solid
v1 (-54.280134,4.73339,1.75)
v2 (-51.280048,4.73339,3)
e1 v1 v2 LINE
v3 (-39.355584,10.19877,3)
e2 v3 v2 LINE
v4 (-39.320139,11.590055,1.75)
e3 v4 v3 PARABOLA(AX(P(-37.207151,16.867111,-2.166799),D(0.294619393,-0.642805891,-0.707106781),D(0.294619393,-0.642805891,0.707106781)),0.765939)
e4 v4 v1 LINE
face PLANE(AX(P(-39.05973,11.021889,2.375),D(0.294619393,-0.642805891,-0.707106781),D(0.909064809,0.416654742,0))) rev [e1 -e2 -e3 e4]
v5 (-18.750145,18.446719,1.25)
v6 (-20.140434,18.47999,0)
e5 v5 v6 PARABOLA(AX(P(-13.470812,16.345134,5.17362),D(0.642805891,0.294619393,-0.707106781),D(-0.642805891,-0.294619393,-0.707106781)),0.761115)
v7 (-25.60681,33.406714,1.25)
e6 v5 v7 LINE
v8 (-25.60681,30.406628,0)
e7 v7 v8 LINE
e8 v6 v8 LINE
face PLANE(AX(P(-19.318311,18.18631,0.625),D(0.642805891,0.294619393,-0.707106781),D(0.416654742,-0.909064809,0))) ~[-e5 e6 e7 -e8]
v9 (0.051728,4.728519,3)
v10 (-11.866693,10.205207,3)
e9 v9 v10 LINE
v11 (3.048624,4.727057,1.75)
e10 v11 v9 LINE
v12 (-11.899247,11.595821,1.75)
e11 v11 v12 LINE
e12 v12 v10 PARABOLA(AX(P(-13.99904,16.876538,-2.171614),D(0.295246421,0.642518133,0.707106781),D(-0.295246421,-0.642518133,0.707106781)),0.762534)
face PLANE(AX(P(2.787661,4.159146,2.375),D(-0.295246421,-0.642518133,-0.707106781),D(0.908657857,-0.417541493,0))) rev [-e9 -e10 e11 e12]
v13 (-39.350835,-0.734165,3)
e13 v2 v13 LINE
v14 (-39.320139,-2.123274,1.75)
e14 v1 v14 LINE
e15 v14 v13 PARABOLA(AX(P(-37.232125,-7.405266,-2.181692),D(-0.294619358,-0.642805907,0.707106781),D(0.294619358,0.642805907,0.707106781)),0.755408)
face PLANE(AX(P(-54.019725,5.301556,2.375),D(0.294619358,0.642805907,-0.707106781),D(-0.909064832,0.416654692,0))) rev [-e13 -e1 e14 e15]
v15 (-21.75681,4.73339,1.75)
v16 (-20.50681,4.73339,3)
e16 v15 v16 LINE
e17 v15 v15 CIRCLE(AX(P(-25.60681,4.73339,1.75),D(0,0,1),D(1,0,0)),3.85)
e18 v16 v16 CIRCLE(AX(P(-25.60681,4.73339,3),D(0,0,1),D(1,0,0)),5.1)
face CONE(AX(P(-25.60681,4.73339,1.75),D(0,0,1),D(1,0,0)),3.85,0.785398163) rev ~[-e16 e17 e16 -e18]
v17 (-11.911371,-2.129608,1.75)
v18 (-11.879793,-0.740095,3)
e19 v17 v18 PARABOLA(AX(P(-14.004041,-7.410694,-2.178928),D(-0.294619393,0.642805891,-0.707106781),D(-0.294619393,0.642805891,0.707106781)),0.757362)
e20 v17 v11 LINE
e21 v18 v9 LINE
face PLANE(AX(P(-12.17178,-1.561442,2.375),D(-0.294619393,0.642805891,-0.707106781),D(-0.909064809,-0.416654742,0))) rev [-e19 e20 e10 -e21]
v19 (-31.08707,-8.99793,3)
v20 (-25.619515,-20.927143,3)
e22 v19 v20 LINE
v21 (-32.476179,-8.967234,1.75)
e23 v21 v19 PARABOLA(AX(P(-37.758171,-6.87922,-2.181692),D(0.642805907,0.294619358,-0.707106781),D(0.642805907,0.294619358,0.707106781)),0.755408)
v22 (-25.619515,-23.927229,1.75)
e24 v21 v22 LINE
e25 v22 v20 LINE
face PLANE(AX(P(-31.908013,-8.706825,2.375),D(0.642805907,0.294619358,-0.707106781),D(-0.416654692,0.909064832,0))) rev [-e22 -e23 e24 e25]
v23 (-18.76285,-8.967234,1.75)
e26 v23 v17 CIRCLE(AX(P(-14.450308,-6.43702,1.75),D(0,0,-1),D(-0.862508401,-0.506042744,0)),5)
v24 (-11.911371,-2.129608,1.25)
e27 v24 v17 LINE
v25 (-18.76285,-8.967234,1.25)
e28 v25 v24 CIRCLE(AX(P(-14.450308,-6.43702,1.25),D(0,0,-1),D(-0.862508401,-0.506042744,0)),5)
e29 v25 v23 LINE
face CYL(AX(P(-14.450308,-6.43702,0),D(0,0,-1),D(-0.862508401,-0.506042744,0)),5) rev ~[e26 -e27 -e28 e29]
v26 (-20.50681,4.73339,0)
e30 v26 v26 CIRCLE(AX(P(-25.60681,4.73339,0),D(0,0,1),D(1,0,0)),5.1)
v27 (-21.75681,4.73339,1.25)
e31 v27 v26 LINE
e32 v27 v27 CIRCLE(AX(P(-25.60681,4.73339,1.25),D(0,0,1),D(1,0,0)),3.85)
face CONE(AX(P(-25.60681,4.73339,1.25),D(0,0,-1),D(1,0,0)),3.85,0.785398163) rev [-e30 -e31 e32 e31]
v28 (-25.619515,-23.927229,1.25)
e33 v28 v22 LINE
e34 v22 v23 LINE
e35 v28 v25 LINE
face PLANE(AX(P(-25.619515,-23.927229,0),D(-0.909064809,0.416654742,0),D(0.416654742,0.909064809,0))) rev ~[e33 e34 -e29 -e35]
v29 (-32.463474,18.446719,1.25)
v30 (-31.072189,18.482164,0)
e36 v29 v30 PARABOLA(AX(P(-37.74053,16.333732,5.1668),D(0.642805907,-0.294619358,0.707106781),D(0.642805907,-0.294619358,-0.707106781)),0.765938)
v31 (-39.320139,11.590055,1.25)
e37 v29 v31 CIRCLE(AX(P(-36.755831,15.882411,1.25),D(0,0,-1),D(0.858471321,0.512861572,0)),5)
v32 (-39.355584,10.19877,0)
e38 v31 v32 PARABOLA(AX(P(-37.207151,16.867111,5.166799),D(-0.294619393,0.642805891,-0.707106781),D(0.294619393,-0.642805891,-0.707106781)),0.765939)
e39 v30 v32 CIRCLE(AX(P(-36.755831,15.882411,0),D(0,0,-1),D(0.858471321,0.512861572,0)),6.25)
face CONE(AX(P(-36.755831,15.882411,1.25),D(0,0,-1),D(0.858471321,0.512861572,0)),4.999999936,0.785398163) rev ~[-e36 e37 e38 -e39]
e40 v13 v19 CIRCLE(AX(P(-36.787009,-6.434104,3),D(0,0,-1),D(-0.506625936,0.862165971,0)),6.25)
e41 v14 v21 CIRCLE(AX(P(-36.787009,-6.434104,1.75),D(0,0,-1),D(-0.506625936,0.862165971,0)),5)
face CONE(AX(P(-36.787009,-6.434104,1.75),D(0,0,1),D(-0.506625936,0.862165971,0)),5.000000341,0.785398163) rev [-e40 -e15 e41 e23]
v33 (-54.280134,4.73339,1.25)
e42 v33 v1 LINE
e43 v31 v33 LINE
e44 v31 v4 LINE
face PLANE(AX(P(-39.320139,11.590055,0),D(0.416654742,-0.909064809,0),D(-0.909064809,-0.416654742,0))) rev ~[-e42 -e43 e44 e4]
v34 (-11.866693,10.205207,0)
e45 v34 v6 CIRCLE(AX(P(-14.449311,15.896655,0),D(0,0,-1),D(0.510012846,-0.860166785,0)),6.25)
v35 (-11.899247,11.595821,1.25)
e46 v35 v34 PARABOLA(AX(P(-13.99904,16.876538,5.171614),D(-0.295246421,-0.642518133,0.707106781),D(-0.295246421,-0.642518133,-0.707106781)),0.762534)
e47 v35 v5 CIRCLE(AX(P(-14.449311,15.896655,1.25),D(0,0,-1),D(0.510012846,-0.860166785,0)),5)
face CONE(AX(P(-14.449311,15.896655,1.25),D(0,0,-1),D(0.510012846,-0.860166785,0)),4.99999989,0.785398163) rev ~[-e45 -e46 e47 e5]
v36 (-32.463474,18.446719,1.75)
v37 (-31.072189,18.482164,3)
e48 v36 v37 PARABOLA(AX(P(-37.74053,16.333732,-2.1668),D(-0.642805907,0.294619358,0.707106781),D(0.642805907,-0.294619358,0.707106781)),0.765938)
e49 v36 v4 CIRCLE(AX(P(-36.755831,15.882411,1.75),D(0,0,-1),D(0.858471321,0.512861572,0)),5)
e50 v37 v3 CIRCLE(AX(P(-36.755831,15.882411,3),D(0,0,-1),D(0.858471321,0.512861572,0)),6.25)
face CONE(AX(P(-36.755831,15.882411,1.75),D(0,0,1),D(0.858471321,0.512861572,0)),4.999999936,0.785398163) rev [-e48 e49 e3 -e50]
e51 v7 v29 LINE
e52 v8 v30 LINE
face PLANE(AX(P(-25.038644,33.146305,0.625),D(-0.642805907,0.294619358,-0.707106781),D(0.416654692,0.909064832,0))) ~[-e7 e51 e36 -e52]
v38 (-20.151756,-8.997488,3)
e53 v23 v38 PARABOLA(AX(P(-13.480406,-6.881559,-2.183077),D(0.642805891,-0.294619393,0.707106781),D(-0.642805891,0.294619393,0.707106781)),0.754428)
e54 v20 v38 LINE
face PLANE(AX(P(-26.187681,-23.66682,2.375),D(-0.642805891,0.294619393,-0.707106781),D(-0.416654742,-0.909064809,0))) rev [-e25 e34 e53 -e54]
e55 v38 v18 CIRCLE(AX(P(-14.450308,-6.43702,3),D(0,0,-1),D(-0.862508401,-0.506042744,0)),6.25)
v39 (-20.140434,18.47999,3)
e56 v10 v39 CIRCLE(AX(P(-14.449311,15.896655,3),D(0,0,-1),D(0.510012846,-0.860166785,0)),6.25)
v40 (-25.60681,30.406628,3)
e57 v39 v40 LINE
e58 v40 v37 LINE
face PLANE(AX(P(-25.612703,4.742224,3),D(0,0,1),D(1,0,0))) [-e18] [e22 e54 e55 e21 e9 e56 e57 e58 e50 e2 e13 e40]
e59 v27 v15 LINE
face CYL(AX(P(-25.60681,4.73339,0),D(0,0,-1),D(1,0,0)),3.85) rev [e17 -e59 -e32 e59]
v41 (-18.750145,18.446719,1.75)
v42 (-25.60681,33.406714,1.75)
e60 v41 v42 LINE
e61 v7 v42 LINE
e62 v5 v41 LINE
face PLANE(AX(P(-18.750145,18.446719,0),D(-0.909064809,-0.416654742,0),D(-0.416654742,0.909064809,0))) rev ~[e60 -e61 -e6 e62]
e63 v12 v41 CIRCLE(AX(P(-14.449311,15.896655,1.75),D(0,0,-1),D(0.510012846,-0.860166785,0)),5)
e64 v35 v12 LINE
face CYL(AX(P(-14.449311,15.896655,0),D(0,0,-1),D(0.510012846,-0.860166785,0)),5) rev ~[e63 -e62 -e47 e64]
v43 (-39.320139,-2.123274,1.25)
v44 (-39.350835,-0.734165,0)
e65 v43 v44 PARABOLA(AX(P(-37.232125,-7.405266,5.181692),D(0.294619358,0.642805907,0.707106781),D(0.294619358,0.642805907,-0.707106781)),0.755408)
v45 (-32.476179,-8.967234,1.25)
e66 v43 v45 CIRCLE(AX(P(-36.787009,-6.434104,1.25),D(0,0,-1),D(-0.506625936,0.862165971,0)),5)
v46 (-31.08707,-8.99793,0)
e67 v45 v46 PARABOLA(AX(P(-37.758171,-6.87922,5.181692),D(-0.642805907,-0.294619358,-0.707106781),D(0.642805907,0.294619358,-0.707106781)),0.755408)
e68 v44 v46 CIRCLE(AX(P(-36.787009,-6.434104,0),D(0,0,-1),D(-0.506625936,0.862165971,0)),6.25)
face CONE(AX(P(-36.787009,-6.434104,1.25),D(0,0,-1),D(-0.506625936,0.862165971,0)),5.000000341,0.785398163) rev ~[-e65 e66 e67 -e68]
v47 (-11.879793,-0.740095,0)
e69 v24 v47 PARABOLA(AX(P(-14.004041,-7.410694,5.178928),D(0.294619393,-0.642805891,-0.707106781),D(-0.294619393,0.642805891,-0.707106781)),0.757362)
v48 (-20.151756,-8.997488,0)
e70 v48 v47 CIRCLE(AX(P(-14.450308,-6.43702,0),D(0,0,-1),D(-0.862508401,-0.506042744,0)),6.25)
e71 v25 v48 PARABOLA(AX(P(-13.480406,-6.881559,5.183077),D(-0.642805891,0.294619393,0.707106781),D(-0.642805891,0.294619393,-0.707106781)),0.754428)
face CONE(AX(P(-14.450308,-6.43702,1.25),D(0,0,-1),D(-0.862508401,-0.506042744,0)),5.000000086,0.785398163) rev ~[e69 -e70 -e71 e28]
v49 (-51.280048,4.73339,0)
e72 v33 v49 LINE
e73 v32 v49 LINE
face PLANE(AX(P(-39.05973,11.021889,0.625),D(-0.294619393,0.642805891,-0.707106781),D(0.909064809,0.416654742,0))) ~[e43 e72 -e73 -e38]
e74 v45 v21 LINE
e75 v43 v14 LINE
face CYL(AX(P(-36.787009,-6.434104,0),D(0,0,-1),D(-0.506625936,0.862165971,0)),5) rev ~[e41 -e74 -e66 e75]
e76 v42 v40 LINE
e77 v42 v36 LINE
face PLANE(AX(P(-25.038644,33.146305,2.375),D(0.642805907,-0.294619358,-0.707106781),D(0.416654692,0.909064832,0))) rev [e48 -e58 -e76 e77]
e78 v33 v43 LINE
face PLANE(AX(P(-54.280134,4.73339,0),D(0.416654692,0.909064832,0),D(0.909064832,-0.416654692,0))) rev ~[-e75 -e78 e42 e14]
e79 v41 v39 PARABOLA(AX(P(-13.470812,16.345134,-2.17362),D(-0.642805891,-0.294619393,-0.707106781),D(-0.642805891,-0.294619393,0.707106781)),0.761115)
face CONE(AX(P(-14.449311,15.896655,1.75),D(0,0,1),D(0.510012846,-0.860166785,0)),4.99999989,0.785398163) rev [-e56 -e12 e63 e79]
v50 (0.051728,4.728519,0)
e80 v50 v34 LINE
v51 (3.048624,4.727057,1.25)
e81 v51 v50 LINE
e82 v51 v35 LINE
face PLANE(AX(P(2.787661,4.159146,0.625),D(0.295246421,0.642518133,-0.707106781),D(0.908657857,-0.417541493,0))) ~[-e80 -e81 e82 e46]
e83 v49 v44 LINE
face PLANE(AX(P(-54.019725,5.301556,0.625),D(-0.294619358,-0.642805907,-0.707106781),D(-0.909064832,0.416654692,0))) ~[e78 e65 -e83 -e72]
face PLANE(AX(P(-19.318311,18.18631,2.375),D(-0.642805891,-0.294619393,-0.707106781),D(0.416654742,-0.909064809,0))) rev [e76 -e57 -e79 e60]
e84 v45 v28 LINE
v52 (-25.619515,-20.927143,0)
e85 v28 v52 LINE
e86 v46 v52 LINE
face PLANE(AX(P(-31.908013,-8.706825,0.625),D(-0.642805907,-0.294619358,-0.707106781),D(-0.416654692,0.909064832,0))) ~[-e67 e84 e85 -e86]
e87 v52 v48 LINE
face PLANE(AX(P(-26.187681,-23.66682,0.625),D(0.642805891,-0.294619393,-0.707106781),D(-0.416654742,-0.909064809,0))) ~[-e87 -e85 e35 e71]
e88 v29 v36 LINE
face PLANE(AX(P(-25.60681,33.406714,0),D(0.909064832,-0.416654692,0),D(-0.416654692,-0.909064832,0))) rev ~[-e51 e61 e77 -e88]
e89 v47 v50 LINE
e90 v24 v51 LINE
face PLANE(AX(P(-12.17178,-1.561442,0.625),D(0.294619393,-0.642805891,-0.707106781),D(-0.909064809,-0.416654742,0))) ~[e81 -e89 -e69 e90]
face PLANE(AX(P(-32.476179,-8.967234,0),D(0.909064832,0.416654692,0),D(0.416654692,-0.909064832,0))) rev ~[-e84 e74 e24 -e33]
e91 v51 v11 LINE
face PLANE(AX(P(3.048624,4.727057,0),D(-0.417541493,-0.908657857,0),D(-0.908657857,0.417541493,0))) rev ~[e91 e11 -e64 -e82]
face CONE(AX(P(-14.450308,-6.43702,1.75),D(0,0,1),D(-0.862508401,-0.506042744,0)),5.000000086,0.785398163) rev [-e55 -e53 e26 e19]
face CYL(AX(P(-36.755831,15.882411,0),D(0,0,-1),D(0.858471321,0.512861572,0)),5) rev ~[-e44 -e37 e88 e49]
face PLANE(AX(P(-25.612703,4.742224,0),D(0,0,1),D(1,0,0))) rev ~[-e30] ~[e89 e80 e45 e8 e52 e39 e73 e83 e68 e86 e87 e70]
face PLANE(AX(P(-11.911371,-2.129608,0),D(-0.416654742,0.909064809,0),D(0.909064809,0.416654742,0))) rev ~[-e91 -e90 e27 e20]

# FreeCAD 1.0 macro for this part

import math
import FreeCAD as App
import Part
import Sketcher


def edges_at(feature, points):
    """Names of the edges that pass closest to the given points."""
    edges = feature.Shape.Edges
    near = lambda p: min(range(len(edges)), key=lambda i: edges[i].distToShape(Part.Vertex(*p))[0])
    return sorted({f"Edge{near(p) + 1}" for p in points})

doc = App.newDocument("Part")
body = doc.addObject("PartDesign::Body", "Body")

sketch1 = body.newObject("Sketcher::SketchObject", "Sketch")
sketch1.AttachmentSupport = (doc.getObject("XY_Plane"), [""])
sketch1.MapMode = "FlatFace"
sketch1.addGeometry(Part.LineSegment(App.Vector(-25.6, 33.4, 0), App.Vector(-32.5, 18.4, 0)), False)
sketch1.addGeometry(Part.ArcOfCircle(Part.Circle(App.Vector(-36.8, 15.9, 0), App.Vector(0, 0, 1), 5), math.radians(-121), math.radians(31)), False)
sketch1.addGeometry(Part.LineSegment(App.Vector(-39.3, 11.6, 0), App.Vector(-54.3, 4.7, 0)), False)
sketch1.addGeometry(Part.LineSegment(App.Vector(-54.3, 4.7, 0), App.Vector(-39.3, -2.1, 0)), False)
sketch1.addGeometry(Part.ArcOfCircle(Part.Circle(App.Vector(-36.8, -6.4, 0), App.Vector(0, 0, 1), 5), math.radians(-30), math.radians(120)), False)
sketch1.addGeometry(Part.LineSegment(App.Vector(-32.5, -9, 0), App.Vector(-25.6, -23.9, 0)), False)
sketch1.addGeometry(Part.LineSegment(App.Vector(-25.6, -23.9, 0), App.Vector(-18.8, -9, 0)), False)
sketch1.addGeometry(Part.ArcOfCircle(Part.Circle(App.Vector(-14.5, -6.4, 0), App.Vector(0, 0, 1), 5), math.radians(59), math.radians(210)), False)
sketch1.addGeometry(Part.LineSegment(App.Vector(-11.9, -2.1, 0), App.Vector(3, 4.7, 0)), False)
sketch1.addGeometry(Part.LineSegment(App.Vector(3, 4.7, 0), App.Vector(-11.9, 11.6, 0)), False)
sketch1.addGeometry(Part.ArcOfCircle(Part.Circle(App.Vector(-14.4, 15.9, 0), App.Vector(0, 0, 1), 5), math.radians(149), math.radians(301)), False)
sketch1.addGeometry(Part.LineSegment(App.Vector(-18.8, 18.4, 0), App.Vector(-25.6, 33.4, 0)), False)
sketch1.addGeometry(Part.Circle(App.Vector(-25.6, 4.7, 0), App.Vector(0, 0, 1), 3.9), False)
sketch1.addConstraint(Sketcher.Constraint("Coincident", 0, 2, 1, 2))
sketch1.addConstraint(Sketcher.Constraint("Coincident", 1, 1, 2, 1))
sketch1.addConstraint(Sketcher.Constraint("Coincident", 2, 2, 3, 1))
sketch1.addConstraint(Sketcher.Constraint("Coincident", 3, 2, 4, 2))
sketch1.addConstraint(Sketcher.Constraint("Coincident", 4, 1, 5, 1))
sketch1.addConstraint(Sketcher.Constraint("Coincident", 5, 2, 6, 1))
sketch1.addConstraint(Sketcher.Constraint("Coincident", 6, 2, 7, 2))
sketch1.addConstraint(Sketcher.Constraint("Coincident", 7, 1, 8, 1))
sketch1.addConstraint(Sketcher.Constraint("Coincident", 8, 2, 9, 1))
sketch1.addConstraint(Sketcher.Constraint("Coincident", 9, 2, 10, 2))
sketch1.addConstraint(Sketcher.Constraint("Coincident", 10, 1, 11, 1))
sketch1.addConstraint(Sketcher.Constraint("Coincident", 11, 2, 0, 1))
sketch1.addConstraint(Sketcher.Constraint("Equal", 1, 4))
sketch1.addConstraint(Sketcher.Constraint("Equal", 4, 7))
sketch1.addConstraint(Sketcher.Constraint("Equal", 7, 10))
sketch1.addConstraint(Sketcher.Constraint("Perpendicular", 0, 3))
sketch1.addConstraint(Sketcher.Constraint("Perpendicular", 2, 5))
sketch1.addConstraint(Sketcher.Constraint("Perpendicular", 3, 6))
sketch1.addConstraint(Sketcher.Constraint("Perpendicular", 5, 8))
sketch1.addConstraint(Sketcher.Constraint("Perpendicular", 8, 11))
sketch1.addConstraint(Sketcher.Constraint("Horizontal", 12, 3, 2, 2))
sketch1.addConstraint(Sketcher.Constraint("Horizontal", 4, 1, 6, 2))
sketch1.addConstraint(Sketcher.Constraint("Horizontal", 0, 2, 10, 1))
sketch1.addConstraint(Sketcher.Constraint("Vertical", 1, 1, 3, 2))
sketch1.addConstraint(Sketcher.Constraint("Vertical", 12, 3, 11, 2))
sketch1.addConstraint(Sketcher.Constraint("Equal", 0, 2))
sketch1.addConstraint(Sketcher.Constraint("Equal", 2, 3))
sketch1.addConstraint(Sketcher.Constraint("Equal", 3, 5))
sketch1.addConstraint(Sketcher.Constraint("Equal", 6, 8))
sketch1.addConstraint(Sketcher.Constraint("Radius", 1, 5.0))
sketch1.addConstraint(Sketcher.Constraint("Diameter", 12, 7.7))
sketch1.addConstraint(Sketcher.Constraint("DistanceY", 7, 1, 12, 3, 6.862998))
sketch1.addConstraint(Sketcher.Constraint("DistanceX", 4, 3, 7, 3, 22.336701))
sketch1.addConstraint(Sketcher.Constraint("DistanceX", 12, 3, 10, 3, 11.157499))
sketch1.addConstraint(Sketcher.Constraint("DistanceX", 4, 3, 12, 3, 11.180199))
sketch1.addConstraint(Sketcher.Constraint("DistanceY", 1, 1, 10, 3, 4.3066))
sketch1.addConstraint(Sketcher.Constraint("DistanceX", 10, 1, 9, 2, 6.850898))
sketch1.addConstraint(Sketcher.Constraint("DistanceY", 9, 2, 10, 1, 6.850898))
sketch1.addConstraint(Sketcher.Constraint("DistanceX", 1, 3, -1, 1, 36.755831))
sketch1.addConstraint(Sketcher.Constraint("DistanceY", -1, 1, 1, 3, 15.882411))
sketch1.addConstraint(Sketcher.Constraint("DistanceX", 4, 3, -1, 1, 36.787009))
sketch1.addConstraint(Sketcher.Constraint("DistanceY", 7, 3, -1, 1, 6.43702))
sketch1.addConstraint(Sketcher.Constraint("DistanceY", 5, 2, -1, 1, 23.927229))
pad1 = body.newObject("PartDesign::Pad", "Pad")
pad1.Profile = sketch1
pad1.Length = 3
doc.recompute()

chamfer = body.newObject("PartDesign::Chamfer", "Chamfer")
chamfer.Base = (pad1, edges_at(pad1, [
    (-4.425, 8.161, 3),
    (-17.985, 12.361, 3),
    (-22.178, 25.927, 3),
    (-29.035, 25.927, 3),
    (-33.22, 12.347, 3),
    (-46.8, 8.162, 3),
    (-46.8, 1.305, 3),
    (-33.251, -2.899, 3),
    (-29.048, -16.447, 3),
    (-22.191, -16.447, 3),
    (-17.982, -2.898, 3),
    (-4.431, 1.299, 3),
    (-29.457, 4.733, 3),
    (-4.425, 8.161, 0),
    (-17.985, 12.361, 0),
    (-22.178, 25.927, 0),
    (-29.035, 25.927, 0),
    (-33.22, 12.347, 0),
    (-46.8, 8.162, 0),
    (-46.8, 1.305, 0),
    (-33.251, -2.899, 0),
    (-29.048, -16.447, 0),
    (-22.191, -16.447, 0),
    (-17.982, -2.898, 0),
    (-4.431, 1.299, 0),
    (-29.457, 4.733, 0),
]))
chamfer.Size = 1.25

doc.recompute()
